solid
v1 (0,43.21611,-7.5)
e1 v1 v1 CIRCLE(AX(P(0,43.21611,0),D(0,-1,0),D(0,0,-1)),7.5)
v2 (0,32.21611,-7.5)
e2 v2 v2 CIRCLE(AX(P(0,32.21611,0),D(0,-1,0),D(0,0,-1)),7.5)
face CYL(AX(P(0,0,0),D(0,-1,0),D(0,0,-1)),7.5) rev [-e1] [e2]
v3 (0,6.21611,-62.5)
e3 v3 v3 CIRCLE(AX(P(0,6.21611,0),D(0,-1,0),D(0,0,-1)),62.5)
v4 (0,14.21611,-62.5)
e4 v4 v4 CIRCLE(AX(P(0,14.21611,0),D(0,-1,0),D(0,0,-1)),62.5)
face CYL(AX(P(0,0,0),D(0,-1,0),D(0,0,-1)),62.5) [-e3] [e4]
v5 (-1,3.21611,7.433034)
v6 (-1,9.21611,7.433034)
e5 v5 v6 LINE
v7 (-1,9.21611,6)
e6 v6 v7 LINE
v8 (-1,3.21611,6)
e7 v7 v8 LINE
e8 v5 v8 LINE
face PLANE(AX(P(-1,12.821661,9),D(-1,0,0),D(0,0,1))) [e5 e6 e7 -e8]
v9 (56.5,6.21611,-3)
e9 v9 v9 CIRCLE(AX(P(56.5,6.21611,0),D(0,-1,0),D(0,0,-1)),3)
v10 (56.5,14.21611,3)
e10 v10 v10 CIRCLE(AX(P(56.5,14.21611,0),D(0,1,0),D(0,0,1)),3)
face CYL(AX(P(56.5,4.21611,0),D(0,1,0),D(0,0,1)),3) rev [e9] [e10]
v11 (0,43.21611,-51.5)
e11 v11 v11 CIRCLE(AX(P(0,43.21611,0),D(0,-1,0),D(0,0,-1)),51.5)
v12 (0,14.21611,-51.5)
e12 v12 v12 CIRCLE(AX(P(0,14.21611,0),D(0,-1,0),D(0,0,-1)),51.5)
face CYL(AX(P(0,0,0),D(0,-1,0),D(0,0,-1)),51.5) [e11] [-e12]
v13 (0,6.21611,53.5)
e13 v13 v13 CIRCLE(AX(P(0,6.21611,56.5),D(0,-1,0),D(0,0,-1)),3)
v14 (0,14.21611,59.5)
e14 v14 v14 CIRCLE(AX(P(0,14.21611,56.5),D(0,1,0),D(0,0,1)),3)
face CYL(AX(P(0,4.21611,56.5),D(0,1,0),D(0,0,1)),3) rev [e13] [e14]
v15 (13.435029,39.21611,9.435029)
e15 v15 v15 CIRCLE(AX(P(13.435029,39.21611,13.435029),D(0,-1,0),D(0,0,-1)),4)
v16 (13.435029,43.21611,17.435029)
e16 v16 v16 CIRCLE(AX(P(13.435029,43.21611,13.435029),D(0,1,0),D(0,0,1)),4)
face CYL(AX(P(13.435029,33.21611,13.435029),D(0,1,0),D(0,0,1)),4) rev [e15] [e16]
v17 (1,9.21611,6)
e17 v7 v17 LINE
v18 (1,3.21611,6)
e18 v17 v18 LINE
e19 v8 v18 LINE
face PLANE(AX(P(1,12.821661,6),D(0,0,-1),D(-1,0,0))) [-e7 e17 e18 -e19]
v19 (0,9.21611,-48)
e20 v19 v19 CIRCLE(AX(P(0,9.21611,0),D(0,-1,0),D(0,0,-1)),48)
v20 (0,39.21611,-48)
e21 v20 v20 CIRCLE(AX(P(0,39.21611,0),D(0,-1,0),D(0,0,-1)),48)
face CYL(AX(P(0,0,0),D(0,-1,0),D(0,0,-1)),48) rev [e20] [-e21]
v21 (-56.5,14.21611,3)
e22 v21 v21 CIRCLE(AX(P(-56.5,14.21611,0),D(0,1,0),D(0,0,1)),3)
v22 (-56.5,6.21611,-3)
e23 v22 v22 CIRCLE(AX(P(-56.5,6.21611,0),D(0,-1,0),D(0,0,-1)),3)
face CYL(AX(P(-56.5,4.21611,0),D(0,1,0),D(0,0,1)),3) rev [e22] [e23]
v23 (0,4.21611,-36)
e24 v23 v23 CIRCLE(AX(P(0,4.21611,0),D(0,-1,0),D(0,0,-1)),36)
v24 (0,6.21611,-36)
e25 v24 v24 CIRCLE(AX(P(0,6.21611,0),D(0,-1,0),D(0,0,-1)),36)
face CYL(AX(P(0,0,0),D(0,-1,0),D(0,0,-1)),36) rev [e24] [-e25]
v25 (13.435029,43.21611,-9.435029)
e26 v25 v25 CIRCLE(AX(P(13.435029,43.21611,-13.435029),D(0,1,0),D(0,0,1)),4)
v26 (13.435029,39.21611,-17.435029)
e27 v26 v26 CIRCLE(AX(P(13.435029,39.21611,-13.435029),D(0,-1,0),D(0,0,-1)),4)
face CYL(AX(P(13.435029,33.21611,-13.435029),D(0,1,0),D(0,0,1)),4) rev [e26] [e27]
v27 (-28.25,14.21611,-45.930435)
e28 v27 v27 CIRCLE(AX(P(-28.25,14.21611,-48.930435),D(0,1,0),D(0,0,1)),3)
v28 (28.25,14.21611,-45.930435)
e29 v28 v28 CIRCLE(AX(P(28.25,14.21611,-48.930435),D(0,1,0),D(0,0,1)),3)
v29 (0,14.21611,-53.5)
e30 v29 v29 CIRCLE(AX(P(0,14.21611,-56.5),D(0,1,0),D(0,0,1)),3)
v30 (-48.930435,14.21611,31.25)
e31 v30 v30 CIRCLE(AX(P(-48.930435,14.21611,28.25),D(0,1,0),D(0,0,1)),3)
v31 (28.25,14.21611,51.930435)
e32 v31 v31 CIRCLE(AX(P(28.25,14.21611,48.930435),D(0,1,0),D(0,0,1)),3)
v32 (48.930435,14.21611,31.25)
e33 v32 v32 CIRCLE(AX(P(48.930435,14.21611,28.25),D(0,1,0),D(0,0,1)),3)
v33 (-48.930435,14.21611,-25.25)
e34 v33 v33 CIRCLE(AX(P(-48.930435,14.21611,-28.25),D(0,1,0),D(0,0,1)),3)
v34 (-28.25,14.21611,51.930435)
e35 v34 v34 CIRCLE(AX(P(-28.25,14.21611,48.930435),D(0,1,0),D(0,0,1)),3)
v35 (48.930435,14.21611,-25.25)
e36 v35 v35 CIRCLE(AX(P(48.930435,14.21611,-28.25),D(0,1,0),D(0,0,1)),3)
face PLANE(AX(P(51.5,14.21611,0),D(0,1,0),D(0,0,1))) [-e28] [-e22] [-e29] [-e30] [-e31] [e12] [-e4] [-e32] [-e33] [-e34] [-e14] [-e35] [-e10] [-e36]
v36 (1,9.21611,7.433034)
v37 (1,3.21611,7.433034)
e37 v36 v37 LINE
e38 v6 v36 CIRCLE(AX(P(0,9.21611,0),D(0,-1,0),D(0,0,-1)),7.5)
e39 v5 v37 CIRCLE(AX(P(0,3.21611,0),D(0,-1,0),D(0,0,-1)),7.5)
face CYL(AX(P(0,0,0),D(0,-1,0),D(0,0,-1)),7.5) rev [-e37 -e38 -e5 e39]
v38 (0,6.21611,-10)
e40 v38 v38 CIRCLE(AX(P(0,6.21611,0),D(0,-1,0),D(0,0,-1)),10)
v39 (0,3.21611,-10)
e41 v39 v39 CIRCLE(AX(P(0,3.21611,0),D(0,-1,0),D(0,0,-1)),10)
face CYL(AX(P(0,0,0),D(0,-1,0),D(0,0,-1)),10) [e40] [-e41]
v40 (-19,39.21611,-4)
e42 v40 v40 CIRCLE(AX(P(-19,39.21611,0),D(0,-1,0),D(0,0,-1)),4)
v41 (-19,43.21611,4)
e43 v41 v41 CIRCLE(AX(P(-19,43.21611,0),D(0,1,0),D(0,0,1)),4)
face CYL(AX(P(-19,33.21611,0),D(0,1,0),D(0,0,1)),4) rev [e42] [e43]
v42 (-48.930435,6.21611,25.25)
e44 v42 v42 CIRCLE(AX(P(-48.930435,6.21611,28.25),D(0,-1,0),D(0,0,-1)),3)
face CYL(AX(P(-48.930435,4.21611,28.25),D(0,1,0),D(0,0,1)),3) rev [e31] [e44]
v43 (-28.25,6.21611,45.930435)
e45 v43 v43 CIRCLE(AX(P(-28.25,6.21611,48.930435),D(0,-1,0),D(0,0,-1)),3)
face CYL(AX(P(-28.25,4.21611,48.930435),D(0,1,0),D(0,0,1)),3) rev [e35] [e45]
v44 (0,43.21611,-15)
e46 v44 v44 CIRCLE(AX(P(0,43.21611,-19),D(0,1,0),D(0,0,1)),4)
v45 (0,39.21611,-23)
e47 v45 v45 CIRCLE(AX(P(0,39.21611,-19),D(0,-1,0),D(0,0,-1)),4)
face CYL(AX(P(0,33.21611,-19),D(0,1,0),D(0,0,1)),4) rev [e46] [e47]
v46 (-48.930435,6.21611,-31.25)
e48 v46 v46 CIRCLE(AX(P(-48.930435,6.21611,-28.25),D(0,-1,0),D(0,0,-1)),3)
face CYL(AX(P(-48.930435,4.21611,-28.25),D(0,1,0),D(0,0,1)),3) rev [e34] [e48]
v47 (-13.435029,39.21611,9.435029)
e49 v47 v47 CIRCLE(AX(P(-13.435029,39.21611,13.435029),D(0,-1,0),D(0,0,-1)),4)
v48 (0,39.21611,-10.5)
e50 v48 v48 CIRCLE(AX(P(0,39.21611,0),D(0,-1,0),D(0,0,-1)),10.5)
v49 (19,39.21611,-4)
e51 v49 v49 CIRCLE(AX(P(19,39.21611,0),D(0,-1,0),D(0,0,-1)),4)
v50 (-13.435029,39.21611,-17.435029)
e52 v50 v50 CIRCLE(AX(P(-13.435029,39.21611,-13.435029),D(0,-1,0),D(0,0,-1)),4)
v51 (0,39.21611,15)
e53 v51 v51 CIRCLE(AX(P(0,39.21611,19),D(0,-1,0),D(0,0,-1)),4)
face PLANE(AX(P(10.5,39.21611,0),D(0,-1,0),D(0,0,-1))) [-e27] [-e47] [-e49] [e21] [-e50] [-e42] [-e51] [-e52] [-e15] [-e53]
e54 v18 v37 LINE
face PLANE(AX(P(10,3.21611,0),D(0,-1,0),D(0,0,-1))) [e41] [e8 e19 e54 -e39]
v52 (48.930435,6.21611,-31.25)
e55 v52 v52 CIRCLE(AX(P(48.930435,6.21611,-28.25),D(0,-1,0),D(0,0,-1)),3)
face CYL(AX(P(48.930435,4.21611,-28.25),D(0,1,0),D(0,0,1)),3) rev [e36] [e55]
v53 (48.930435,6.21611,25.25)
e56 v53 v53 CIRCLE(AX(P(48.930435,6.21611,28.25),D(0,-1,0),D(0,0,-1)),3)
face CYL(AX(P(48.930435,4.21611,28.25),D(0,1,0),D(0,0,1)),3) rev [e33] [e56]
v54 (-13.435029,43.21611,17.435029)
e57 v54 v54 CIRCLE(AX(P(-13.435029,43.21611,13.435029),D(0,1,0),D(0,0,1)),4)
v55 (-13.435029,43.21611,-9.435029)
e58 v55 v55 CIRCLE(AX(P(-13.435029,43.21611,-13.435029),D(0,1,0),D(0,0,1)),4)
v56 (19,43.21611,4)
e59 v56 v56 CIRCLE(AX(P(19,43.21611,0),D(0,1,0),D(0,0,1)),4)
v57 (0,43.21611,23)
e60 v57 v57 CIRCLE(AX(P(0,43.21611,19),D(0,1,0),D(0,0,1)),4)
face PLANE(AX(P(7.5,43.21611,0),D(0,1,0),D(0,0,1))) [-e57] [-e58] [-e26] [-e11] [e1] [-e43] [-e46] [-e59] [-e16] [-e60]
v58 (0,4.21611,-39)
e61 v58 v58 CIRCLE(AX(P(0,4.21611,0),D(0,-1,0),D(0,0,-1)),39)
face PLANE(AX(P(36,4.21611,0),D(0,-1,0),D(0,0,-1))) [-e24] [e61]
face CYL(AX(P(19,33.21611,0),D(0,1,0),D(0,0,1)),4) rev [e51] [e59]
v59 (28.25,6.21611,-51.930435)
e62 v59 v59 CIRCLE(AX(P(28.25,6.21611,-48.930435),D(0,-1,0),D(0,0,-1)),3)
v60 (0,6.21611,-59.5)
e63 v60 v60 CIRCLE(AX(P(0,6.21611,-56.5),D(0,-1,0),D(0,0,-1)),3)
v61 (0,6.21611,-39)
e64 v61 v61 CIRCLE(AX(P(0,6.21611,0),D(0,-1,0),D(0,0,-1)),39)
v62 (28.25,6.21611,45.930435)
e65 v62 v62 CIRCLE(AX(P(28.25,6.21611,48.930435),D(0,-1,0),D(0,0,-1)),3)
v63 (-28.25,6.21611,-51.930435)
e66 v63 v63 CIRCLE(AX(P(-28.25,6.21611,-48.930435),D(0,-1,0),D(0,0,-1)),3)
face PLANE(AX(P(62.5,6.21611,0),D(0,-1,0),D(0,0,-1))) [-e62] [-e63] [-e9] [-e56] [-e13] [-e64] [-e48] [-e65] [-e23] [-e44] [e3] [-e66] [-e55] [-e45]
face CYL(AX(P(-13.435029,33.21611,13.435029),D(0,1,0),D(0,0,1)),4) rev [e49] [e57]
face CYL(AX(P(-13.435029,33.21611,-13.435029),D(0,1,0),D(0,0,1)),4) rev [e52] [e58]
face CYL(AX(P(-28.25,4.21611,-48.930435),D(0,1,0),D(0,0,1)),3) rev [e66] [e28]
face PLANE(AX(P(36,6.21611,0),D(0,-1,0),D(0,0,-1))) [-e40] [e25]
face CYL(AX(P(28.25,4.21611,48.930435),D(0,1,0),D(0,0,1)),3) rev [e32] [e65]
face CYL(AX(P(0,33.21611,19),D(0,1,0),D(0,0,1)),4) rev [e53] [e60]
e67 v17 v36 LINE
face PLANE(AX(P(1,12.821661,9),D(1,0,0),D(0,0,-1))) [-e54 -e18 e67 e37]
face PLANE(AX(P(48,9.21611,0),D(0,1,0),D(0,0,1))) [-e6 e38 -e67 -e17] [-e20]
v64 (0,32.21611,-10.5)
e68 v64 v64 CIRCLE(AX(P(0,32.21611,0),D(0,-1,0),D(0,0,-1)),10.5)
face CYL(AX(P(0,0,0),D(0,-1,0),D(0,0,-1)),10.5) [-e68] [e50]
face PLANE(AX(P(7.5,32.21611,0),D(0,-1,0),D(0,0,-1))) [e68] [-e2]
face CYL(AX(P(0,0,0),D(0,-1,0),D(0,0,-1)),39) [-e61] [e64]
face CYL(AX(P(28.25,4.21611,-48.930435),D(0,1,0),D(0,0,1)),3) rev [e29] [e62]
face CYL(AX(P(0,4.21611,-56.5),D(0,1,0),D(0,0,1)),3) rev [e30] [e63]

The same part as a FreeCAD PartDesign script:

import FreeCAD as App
import Part
import Sketcher
from FreeCAD import Vector
Q = App.Units.Quantity

doc = App.newDocument("Part")
body = doc.addObject("PartDesign::Body", "Body")

sketch1 = body.newObject("Sketcher::SketchObject", "Sketch")
sketch1.AttachmentSupport = (doc.getObject("XY_Plane"), [""])
sketch1.MapMode = "FlatFace"
sketch1.addGeometry(Part.LineSegment(Vector(10.5, 32.2, 0), Vector(10.5, 39.2, 0)), False)
sketch1.addGeometry(Part.LineSegment(Vector(10.5, 39.2, 0), Vector(48, 39.2, 0)), False)
sketch1.addGeometry(Part.LineSegment(Vector(48, 39.2, 0), Vector(48, 9.2, 0)), False)
sketch1.addGeometry(Part.LineSegment(Vector(48, 9.2, 0), Vector(7.5, 9.2, 0)), False)
sketch1.addGeometry(Part.LineSegment(Vector(7.5, 9.2, 0), Vector(7.5, 3.2, 0)), False)
sketch1.addGeometry(Part.LineSegment(Vector(7.5, 3.2, 0), Vector(10, 3.2, 0)), False)
sketch1.addGeometry(Part.LineSegment(Vector(10, 3.2, 0), Vector(10, 6.2, 0)), False)
sketch1.addGeometry(Part.LineSegment(Vector(10, 6.2, 0), Vector(36, 6.2, 0)), False)
sketch1.addGeometry(Part.LineSegment(Vector(36, 6.2, 0), Vector(36, 4.2, 0)), False)
sketch1.addGeometry(Part.LineSegment(Vector(36, 4.2, 0), Vector(39, 4.2, 0)), False)
sketch1.addGeometry(Part.LineSegment(Vector(39, 4.2, 0), Vector(39, 6.2, 0)), False)
sketch1.addGeometry(Part.LineSegment(Vector(39, 6.2, 0), Vector(62.5, 6.2, 0)), False)
sketch1.addGeometry(Part.LineSegment(Vector(62.5, 6.2, 0), Vector(62.5, 14.2, 0)), False)
sketch1.addGeometry(Part.LineSegment(Vector(62.5, 14.2, 0), Vector(51.5, 14.2, 0)), False)
sketch1.addGeometry(Part.LineSegment(Vector(51.5, 14.2, 0), Vector(51.5, 43.2, 0)), False)
sketch1.addGeometry(Part.LineSegment(Vector(51.5, 43.2, 0), Vector(7.5, 43.2, 0)), False)
sketch1.addGeometry(Part.LineSegment(Vector(7.5, 43.2, 0), Vector(7.5, 32.2, 0)), False)
sketch1.addGeometry(Part.LineSegment(Vector(7.5, 32.2, 0), Vector(10.5, 32.2, 0)), False)
sketch1.addConstraint(Sketcher.Constraint("Coincident", 0, 2, 1, 1))
sketch1.addConstraint(Sketcher.Constraint("Coincident", 1, 2, 2, 1))
sketch1.addConstraint(Sketcher.Constraint("Coincident", 2, 2, 3, 1))
sketch1.addConstraint(Sketcher.Constraint("Coincident", 3, 2, 4, 1))
sketch1.addConstraint(Sketcher.Constraint("Coincident", 4, 2, 5, 1))
sketch1.addConstraint(Sketcher.Constraint("Coincident", 5, 2, 6, 1))
sketch1.addConstraint(Sketcher.Constraint("Coincident", 6, 2, 7, 1))
sketch1.addConstraint(Sketcher.Constraint("Coincident", 7, 2, 8, 1))
sketch1.addConstraint(Sketcher.Constraint("Coincident", 8, 2, 9, 1))
sketch1.addConstraint(Sketcher.Constraint("Coincident", 9, 2, 10, 1))
sketch1.addConstraint(Sketcher.Constraint("Coincident", 10, 2, 11, 1))
sketch1.addConstraint(Sketcher.Constraint("Coincident", 11, 2, 12, 1))
sketch1.addConstraint(Sketcher.Constraint("Coincident", 12, 2, 13, 1))
sketch1.addConstraint(Sketcher.Constraint("Coincident", 13, 2, 14, 1))
sketch1.addConstraint(Sketcher.Constraint("Coincident", 14, 2, 15, 1))
sketch1.addConstraint(Sketcher.Constraint("Coincident", 15, 2, 16, 1))
sketch1.addConstraint(Sketcher.Constraint("Coincident", 16, 2, 17, 1))
sketch1.addConstraint(Sketcher.Constraint("Coincident", 17, 2, 0, 1))
sketch1.addConstraint(Sketcher.Constraint("Vertical", 0))
sketch1.addConstraint(Sketcher.Constraint("Horizontal", 1))
sketch1.addConstraint(Sketcher.Constraint("Vertical", 2))
sketch1.addConstraint(Sketcher.Constraint("Horizontal", 3))
sketch1.addConstraint(Sketcher.Constraint("Vertical", 4))
sketch1.addConstraint(Sketcher.Constraint("Horizontal", 5))
sketch1.addConstraint(Sketcher.Constraint("Vertical", 6))
sketch1.addConstraint(Sketcher.Constraint("Horizontal", 7))
sketch1.addConstraint(Sketcher.Constraint("Vertical", 8))
sketch1.addConstraint(Sketcher.Constraint("Horizontal", 9))
sketch1.addConstraint(Sketcher.Constraint("Vertical", 10))
sketch1.addConstraint(Sketcher.Constraint("Horizontal", 11))
sketch1.addConstraint(Sketcher.Constraint("Vertical", 12))
sketch1.addConstraint(Sketcher.Constraint("Horizontal", 13))
sketch1.addConstraint(Sketcher.Constraint("Vertical", 14))
sketch1.addConstraint(Sketcher.Constraint("Horizontal", 15))
sketch1.addConstraint(Sketcher.Constraint("Vertical", 16))
sketch1.addConstraint(Sketcher.Constraint("Horizontal", 17))
sketch1.addConstraint(Sketcher.Constraint("Horizontal", 7, 2, 10, 2))
sketch1.addConstraint(Sketcher.Constraint("Vertical", 4, 2, 15, 2))
sketch1.addConstraint(Sketcher.Constraint("Equal", 9, 17))
sketch1.addConstraint(Sketcher.Constraint("Equal", 17, 6))
sketch1.addConstraint(Sketcher.Constraint("Equal", 13, 16))
sketch1.addConstraint(Sketcher.Constraint("DistanceX", 7, 1, 7, 2, Q("26 mm")))
sketch1.addConstraint(Sketcher.Constraint("DistanceX", 9, 1, 9, 2, Q("3 mm")))
sketch1.addConstraint(Sketcher.Constraint("DistanceX", 13, 2, 13, 1, Q("11 mm")))
sketch1.addConstraint(Sketcher.Constraint("DistanceX", 15, 2, 15, 1, Q("44 mm")))
sketch1.addConstraint(Sketcher.Constraint("DistanceY", 0, 1, 0, 2, Q("7 mm")))
sketch1.addConstraint(Sketcher.Constraint("DistanceY", 2, 2, 2, 1, Q("30 mm")))
sketch1.addConstraint(Sketcher.Constraint("DistanceY", 4, 2, 4, 1, Q("6 mm")))
sketch1.addConstraint(Sketcher.Constraint("DistanceY", 8, 2, 8, 1, Q("2 mm")))
sketch1.addConstraint(Sketcher.Constraint("DistanceY", 12, 1, 12, 2, Q("8 mm")))
sketch1.addConstraint(Sketcher.Constraint("DistanceX", 1, 1, 1, 2, Q("37.5 mm")))
sketch1.addConstraint(Sketcher.Constraint("DistanceX", 5, 1, 5, 2, Q("2.5 mm")))
sketch1.addConstraint(Sketcher.Constraint("DistanceX", -1, 1, 1, 2, Q("48 mm")))
sketch1.addConstraint(Sketcher.Constraint("DistanceY", -1, 1, 0, 2, Q("39.21611 mm")))
revolution = body.newObject("PartDesign::Revolution", "Revolution")
revolution.Profile = sketch1
revolution.ReferenceAxis = (sketch1, ["V_Axis"])
revolution.Angle = 360

sketch2 = body.newObject("Sketcher::SketchObject", "Sketch001")
sketch2.AttachmentSupport = (doc.getObject("XZ_Plane"), [""])
sketch2.MapMode = "FlatFace"
sketch2.AttachmentOffset = App.Placement(Vector(0, 0, -14.21611), App.Rotation())
sketch2.addGeometry(Part.Circle(Vector(56.5, 0, 0), Vector(0, 0, 1), 3), False)
sketch2.addGeometry(Part.Circle(Vector(48.9, 28.2, 0), Vector(0, 0, 1), 3), False)
sketch2.addGeometry(Part.Circle(Vector(28.2, 48.9, 0), Vector(0, 0, 1), 3), False)
sketch2.addGeometry(Part.Circle(Vector(0, 56.5, 0), Vector(0, 0, 1), 3), False)
sketch2.addGeometry(Part.Circle(Vector(-28.2, 48.9, 0), Vector(0, 0, 1), 3), False)
sketch2.addGeometry(Part.Circle(Vector(-48.9, 28.2, 0), Vector(0, 0, 1), 3), False)
sketch2.addGeometry(Part.Circle(Vector(-56.5, 0, 0), Vector(0, 0, 1), 3), False)
sketch2.addGeometry(Part.Circle(Vector(-48.9, -28.2, 0), Vector(0, 0, 1), 3), False)
sketch2.addGeometry(Part.Circle(Vector(-28.2, -48.9, 0), Vector(0, 0, 1), 3), False)
sketch2.addGeometry(Part.Circle(Vector(0, -56.5, 0), Vector(0, 0, 1), 3), False)
sketch2.addGeometry(Part.Circle(Vector(28.2, -48.9, 0), Vector(0, 0, 1), 3), False)
sketch2.addGeometry(Part.Circle(Vector(48.9, -28.2, 0), Vector(0, 0, 1), 3), False)
sketch2.addConstraint(Sketcher.Constraint("Equal", 0, 1))
sketch2.addConstraint(Sketcher.Constraint("Equal", 1, 2))
sketch2.addConstraint(Sketcher.Constraint("Equal", 2, 3))
sketch2.addConstraint(Sketcher.Constraint("Equal", 3, 4))
sketch2.addConstraint(Sketcher.Constraint("Equal", 4, 5))
sketch2.addConstraint(Sketcher.Constraint("Equal", 5, 6))
sketch2.addConstraint(Sketcher.Constraint("Equal", 6, 7))
sketch2.addConstraint(Sketcher.Constraint("Equal", 7, 8))
sketch2.addConstraint(Sketcher.Constraint("Equal", 8, 9))
sketch2.addConstraint(Sketcher.Constraint("Equal", 9, 10))
sketch2.addConstraint(Sketcher.Constraint("Equal", 10, 11))
sketch2.addConstraint(Sketcher.Constraint("Symmetric", 0, 3, 6, 3, -1, 1))
sketch2.addConstraint(Sketcher.Constraint("Symmetric", 1, 3, 7, 3, -1, 1))
sketch2.addConstraint(Sketcher.Constraint("Symmetric", 2, 3, 8, 3, -1, 1))
sketch2.addConstraint(Sketcher.Constraint("Symmetric", 3, 3, 9, 3, -1, 1))
sketch2.addConstraint(Sketcher.Constraint("Symmetric", 4, 3, 10, 3, -1, 1))
sketch2.addConstraint(Sketcher.Constraint("Symmetric", 5, 3, 11, 3, -1, 1))
sketch2.addConstraint(Sketcher.Constraint("Symmetric", 2, 3, 4, 3, -2))
sketch2.addConstraint(Sketcher.Constraint("Symmetric", 1, 3, 5, 3, -2))
sketch2.addConstraint(Sketcher.Constraint("PointOnObject", 0, 3, -1))
sketch2.addConstraint(Sketcher.Constraint("PointOnObject", 3, 3, -2))
sketch2.addConstraint(Sketcher.Constraint("Diameter", 0, Q("6 mm")))
sketch2.addConstraint(Sketcher.Constraint("DistanceX", -1, 1, 0, 3, Q("56.5 mm")))
sketch2.addConstraint(Sketcher.Constraint("DistanceY", -1, 1, 3, 3, Q("56.5 mm")))
sketch2.addConstraint(Sketcher.Constraint("DistanceX", 4, 3, 2, 3, Q("56.5 mm")))
sketch2.addConstraint(Sketcher.Constraint("DistanceY", 7, 3, 5, 3, Q("56.5 mm")))
sketch2.addConstraint(Sketcher.Constraint("DistanceX", 5, 3, 1, 3, Q("97.860871 mm")))
sketch2.addConstraint(Sketcher.Constraint("DistanceY", 8, 3, 4, 3, Q("97.860871 mm")))
pocket1 = body.newObject("PartDesign::Pocket", "Pocket")
pocket1.Profile = sketch2
pocket1.Length = 10
pocket1.Reversed = True

sketch3 = body.newObject("Sketcher::SketchObject", "Sketch002")
sketch3.AttachmentSupport = (doc.getObject("XZ_Plane"), [""])
sketch3.MapMode = "FlatFace"
sketch3.AttachmentOffset = App.Placement(Vector(0, 0, -43.21611), App.Rotation())
sketch3.addGeometry(Part.Circle(Vector(19, 0, 0), Vector(0, 0, 1), 4), False)
sketch3.addGeometry(Part.Circle(Vector(13.4, 13.4, 0), Vector(0, 0, 1), 4), False)
sketch3.addGeometry(Part.Circle(Vector(0, 19, 0), Vector(0, 0, 1), 4), False)
sketch3.addGeometry(Part.Circle(Vector(-13.4, 13.4, 0), Vector(0, 0, 1), 4), False)
sketch3.addGeometry(Part.Circle(Vector(-19, 0, 0), Vector(0, 0, 1), 4), False)
sketch3.addGeometry(Part.Circle(Vector(-13.4, -13.4, 0), Vector(0, 0, 1), 4), False)
sketch3.addGeometry(Part.Circle(Vector(0, -19, 0), Vector(0, 0, 1), 4), False)
sketch3.addGeometry(Part.Circle(Vector(13.4, -13.4, 0), Vector(0, 0, 1), 4), False)
sketch3.addConstraint(Sketcher.Constraint("Equal", 0, 1))
sketch3.addConstraint(Sketcher.Constraint("Equal", 1, 2))
sketch3.addConstraint(Sketcher.Constraint("Equal", 2, 3))
sketch3.addConstraint(Sketcher.Constraint("Equal", 3, 4))
sketch3.addConstraint(Sketcher.Constraint("Equal", 4, 5))
sketch3.addConstraint(Sketcher.Constraint("Equal", 5, 6))
sketch3.addConstraint(Sketcher.Constraint("Equal", 6, 7))
sketch3.addConstraint(Sketcher.Constraint("Symmetric", 0, 3, 4, 3, -1, 1))
sketch3.addConstraint(Sketcher.Constraint("Symmetric", 1, 3, 5, 3, -1, 1))
sketch3.addConstraint(Sketcher.Constraint("Symmetric", 2, 3, 6, 3, -1, 1))
sketch3.addConstraint(Sketcher.Constraint("Symmetric", 3, 3, 7, 3, -1, 1))
sketch3.addConstraint(Sketcher.Constraint("Symmetric", 1, 3, 3, 3, -2))
sketch3.addConstraint(Sketcher.Constraint("PointOnObject", 0, 3, -1))
sketch3.addConstraint(Sketcher.Constraint("PointOnObject", 2, 3, -2))
sketch3.addConstraint(Sketcher.Constraint("Diameter", 0, Q("8 mm")))
sketch3.addConstraint(Sketcher.Constraint("DistanceX", -1, 1, 0, 3, Q("19 mm")))
sketch3.addConstraint(Sketcher.Constraint("DistanceY", -1, 1, 2, 3, Q("19 mm")))
sketch3.addConstraint(Sketcher.Constraint("DistanceX", -1, 1, 1, 3, Q("13.435029 mm")))
sketch3.addConstraint(Sketcher.Constraint("DistanceY", -1, 1, 1, 3, Q("13.435029 mm")))
pocket2 = body.newObject("PartDesign::Pocket", "Pocket001")
pocket2.Profile = sketch3
pocket2.Length = 10
pocket2.Reversed = True

sketch4 = body.newObject("Sketcher::SketchObject", "Sketch003")
sketch4.AttachmentSupport = (doc.getObject("XZ_Plane"), [""])
sketch4.MapMode = "FlatFace"
sketch4.AttachmentOffset = App.Placement(Vector(0, 0, -3.21611), App.Rotation())
sketch4.addGeometry(Part.LineSegment(Vector(-1, 9, 0), Vector(-1, 6, 0)), False)
sketch4.addGeometry(Part.LineSegment(Vector(-1, 6, 0), Vector(1, 6, 0)), False)
sketch4.addGeometry(Part.LineSegment(Vector(1, 6, 0), Vector(1, 9, 0)), False)
sketch4.addGeometry(Part.LineSegment(Vector(1, 9, 0), Vector(-1, 9, 0)), False)
sketch4.addConstraint(Sketcher.Constraint("Coincident", 0, 2, 1, 1))
sketch4.addConstraint(Sketcher.Constraint("Coincident", 1, 2, 2, 1))
sketch4.addConstraint(Sketcher.Constraint("Coincident", 2, 2, 3, 1))
sketch4.addConstraint(Sketcher.Constraint("Coincident", 3, 2, 0, 1))
sketch4.addConstraint(Sketcher.Constraint("Vertical", 0))
sketch4.addConstraint(Sketcher.Constraint("Horizontal", 1))
sketch4.addConstraint(Sketcher.Constraint("Vertical", 2))
sketch4.addConstraint(Sketcher.Constraint("Horizontal", 3))
sketch4.addConstraint(Sketcher.Constraint("DistanceX", 1, 1, 1, 2, Q("2 mm")))
sketch4.addConstraint(Sketcher.Constraint("DistanceY", 0, 2, 0, 1, Q("3 mm")))
sketch4.addConstraint(Sketcher.Constraint("DistanceX", 0, 2, -1, 1, Q("1 mm")))
sketch4.addConstraint(Sketcher.Constraint("DistanceY", -1, 1, 0, 2, Q("6 mm")))
pad1 = body.newObject("PartDesign::Pad", "Pad")
pad1.Profile = sketch4
pad1.Length = 6
pad1.Reversed = True

doc.recompute()
